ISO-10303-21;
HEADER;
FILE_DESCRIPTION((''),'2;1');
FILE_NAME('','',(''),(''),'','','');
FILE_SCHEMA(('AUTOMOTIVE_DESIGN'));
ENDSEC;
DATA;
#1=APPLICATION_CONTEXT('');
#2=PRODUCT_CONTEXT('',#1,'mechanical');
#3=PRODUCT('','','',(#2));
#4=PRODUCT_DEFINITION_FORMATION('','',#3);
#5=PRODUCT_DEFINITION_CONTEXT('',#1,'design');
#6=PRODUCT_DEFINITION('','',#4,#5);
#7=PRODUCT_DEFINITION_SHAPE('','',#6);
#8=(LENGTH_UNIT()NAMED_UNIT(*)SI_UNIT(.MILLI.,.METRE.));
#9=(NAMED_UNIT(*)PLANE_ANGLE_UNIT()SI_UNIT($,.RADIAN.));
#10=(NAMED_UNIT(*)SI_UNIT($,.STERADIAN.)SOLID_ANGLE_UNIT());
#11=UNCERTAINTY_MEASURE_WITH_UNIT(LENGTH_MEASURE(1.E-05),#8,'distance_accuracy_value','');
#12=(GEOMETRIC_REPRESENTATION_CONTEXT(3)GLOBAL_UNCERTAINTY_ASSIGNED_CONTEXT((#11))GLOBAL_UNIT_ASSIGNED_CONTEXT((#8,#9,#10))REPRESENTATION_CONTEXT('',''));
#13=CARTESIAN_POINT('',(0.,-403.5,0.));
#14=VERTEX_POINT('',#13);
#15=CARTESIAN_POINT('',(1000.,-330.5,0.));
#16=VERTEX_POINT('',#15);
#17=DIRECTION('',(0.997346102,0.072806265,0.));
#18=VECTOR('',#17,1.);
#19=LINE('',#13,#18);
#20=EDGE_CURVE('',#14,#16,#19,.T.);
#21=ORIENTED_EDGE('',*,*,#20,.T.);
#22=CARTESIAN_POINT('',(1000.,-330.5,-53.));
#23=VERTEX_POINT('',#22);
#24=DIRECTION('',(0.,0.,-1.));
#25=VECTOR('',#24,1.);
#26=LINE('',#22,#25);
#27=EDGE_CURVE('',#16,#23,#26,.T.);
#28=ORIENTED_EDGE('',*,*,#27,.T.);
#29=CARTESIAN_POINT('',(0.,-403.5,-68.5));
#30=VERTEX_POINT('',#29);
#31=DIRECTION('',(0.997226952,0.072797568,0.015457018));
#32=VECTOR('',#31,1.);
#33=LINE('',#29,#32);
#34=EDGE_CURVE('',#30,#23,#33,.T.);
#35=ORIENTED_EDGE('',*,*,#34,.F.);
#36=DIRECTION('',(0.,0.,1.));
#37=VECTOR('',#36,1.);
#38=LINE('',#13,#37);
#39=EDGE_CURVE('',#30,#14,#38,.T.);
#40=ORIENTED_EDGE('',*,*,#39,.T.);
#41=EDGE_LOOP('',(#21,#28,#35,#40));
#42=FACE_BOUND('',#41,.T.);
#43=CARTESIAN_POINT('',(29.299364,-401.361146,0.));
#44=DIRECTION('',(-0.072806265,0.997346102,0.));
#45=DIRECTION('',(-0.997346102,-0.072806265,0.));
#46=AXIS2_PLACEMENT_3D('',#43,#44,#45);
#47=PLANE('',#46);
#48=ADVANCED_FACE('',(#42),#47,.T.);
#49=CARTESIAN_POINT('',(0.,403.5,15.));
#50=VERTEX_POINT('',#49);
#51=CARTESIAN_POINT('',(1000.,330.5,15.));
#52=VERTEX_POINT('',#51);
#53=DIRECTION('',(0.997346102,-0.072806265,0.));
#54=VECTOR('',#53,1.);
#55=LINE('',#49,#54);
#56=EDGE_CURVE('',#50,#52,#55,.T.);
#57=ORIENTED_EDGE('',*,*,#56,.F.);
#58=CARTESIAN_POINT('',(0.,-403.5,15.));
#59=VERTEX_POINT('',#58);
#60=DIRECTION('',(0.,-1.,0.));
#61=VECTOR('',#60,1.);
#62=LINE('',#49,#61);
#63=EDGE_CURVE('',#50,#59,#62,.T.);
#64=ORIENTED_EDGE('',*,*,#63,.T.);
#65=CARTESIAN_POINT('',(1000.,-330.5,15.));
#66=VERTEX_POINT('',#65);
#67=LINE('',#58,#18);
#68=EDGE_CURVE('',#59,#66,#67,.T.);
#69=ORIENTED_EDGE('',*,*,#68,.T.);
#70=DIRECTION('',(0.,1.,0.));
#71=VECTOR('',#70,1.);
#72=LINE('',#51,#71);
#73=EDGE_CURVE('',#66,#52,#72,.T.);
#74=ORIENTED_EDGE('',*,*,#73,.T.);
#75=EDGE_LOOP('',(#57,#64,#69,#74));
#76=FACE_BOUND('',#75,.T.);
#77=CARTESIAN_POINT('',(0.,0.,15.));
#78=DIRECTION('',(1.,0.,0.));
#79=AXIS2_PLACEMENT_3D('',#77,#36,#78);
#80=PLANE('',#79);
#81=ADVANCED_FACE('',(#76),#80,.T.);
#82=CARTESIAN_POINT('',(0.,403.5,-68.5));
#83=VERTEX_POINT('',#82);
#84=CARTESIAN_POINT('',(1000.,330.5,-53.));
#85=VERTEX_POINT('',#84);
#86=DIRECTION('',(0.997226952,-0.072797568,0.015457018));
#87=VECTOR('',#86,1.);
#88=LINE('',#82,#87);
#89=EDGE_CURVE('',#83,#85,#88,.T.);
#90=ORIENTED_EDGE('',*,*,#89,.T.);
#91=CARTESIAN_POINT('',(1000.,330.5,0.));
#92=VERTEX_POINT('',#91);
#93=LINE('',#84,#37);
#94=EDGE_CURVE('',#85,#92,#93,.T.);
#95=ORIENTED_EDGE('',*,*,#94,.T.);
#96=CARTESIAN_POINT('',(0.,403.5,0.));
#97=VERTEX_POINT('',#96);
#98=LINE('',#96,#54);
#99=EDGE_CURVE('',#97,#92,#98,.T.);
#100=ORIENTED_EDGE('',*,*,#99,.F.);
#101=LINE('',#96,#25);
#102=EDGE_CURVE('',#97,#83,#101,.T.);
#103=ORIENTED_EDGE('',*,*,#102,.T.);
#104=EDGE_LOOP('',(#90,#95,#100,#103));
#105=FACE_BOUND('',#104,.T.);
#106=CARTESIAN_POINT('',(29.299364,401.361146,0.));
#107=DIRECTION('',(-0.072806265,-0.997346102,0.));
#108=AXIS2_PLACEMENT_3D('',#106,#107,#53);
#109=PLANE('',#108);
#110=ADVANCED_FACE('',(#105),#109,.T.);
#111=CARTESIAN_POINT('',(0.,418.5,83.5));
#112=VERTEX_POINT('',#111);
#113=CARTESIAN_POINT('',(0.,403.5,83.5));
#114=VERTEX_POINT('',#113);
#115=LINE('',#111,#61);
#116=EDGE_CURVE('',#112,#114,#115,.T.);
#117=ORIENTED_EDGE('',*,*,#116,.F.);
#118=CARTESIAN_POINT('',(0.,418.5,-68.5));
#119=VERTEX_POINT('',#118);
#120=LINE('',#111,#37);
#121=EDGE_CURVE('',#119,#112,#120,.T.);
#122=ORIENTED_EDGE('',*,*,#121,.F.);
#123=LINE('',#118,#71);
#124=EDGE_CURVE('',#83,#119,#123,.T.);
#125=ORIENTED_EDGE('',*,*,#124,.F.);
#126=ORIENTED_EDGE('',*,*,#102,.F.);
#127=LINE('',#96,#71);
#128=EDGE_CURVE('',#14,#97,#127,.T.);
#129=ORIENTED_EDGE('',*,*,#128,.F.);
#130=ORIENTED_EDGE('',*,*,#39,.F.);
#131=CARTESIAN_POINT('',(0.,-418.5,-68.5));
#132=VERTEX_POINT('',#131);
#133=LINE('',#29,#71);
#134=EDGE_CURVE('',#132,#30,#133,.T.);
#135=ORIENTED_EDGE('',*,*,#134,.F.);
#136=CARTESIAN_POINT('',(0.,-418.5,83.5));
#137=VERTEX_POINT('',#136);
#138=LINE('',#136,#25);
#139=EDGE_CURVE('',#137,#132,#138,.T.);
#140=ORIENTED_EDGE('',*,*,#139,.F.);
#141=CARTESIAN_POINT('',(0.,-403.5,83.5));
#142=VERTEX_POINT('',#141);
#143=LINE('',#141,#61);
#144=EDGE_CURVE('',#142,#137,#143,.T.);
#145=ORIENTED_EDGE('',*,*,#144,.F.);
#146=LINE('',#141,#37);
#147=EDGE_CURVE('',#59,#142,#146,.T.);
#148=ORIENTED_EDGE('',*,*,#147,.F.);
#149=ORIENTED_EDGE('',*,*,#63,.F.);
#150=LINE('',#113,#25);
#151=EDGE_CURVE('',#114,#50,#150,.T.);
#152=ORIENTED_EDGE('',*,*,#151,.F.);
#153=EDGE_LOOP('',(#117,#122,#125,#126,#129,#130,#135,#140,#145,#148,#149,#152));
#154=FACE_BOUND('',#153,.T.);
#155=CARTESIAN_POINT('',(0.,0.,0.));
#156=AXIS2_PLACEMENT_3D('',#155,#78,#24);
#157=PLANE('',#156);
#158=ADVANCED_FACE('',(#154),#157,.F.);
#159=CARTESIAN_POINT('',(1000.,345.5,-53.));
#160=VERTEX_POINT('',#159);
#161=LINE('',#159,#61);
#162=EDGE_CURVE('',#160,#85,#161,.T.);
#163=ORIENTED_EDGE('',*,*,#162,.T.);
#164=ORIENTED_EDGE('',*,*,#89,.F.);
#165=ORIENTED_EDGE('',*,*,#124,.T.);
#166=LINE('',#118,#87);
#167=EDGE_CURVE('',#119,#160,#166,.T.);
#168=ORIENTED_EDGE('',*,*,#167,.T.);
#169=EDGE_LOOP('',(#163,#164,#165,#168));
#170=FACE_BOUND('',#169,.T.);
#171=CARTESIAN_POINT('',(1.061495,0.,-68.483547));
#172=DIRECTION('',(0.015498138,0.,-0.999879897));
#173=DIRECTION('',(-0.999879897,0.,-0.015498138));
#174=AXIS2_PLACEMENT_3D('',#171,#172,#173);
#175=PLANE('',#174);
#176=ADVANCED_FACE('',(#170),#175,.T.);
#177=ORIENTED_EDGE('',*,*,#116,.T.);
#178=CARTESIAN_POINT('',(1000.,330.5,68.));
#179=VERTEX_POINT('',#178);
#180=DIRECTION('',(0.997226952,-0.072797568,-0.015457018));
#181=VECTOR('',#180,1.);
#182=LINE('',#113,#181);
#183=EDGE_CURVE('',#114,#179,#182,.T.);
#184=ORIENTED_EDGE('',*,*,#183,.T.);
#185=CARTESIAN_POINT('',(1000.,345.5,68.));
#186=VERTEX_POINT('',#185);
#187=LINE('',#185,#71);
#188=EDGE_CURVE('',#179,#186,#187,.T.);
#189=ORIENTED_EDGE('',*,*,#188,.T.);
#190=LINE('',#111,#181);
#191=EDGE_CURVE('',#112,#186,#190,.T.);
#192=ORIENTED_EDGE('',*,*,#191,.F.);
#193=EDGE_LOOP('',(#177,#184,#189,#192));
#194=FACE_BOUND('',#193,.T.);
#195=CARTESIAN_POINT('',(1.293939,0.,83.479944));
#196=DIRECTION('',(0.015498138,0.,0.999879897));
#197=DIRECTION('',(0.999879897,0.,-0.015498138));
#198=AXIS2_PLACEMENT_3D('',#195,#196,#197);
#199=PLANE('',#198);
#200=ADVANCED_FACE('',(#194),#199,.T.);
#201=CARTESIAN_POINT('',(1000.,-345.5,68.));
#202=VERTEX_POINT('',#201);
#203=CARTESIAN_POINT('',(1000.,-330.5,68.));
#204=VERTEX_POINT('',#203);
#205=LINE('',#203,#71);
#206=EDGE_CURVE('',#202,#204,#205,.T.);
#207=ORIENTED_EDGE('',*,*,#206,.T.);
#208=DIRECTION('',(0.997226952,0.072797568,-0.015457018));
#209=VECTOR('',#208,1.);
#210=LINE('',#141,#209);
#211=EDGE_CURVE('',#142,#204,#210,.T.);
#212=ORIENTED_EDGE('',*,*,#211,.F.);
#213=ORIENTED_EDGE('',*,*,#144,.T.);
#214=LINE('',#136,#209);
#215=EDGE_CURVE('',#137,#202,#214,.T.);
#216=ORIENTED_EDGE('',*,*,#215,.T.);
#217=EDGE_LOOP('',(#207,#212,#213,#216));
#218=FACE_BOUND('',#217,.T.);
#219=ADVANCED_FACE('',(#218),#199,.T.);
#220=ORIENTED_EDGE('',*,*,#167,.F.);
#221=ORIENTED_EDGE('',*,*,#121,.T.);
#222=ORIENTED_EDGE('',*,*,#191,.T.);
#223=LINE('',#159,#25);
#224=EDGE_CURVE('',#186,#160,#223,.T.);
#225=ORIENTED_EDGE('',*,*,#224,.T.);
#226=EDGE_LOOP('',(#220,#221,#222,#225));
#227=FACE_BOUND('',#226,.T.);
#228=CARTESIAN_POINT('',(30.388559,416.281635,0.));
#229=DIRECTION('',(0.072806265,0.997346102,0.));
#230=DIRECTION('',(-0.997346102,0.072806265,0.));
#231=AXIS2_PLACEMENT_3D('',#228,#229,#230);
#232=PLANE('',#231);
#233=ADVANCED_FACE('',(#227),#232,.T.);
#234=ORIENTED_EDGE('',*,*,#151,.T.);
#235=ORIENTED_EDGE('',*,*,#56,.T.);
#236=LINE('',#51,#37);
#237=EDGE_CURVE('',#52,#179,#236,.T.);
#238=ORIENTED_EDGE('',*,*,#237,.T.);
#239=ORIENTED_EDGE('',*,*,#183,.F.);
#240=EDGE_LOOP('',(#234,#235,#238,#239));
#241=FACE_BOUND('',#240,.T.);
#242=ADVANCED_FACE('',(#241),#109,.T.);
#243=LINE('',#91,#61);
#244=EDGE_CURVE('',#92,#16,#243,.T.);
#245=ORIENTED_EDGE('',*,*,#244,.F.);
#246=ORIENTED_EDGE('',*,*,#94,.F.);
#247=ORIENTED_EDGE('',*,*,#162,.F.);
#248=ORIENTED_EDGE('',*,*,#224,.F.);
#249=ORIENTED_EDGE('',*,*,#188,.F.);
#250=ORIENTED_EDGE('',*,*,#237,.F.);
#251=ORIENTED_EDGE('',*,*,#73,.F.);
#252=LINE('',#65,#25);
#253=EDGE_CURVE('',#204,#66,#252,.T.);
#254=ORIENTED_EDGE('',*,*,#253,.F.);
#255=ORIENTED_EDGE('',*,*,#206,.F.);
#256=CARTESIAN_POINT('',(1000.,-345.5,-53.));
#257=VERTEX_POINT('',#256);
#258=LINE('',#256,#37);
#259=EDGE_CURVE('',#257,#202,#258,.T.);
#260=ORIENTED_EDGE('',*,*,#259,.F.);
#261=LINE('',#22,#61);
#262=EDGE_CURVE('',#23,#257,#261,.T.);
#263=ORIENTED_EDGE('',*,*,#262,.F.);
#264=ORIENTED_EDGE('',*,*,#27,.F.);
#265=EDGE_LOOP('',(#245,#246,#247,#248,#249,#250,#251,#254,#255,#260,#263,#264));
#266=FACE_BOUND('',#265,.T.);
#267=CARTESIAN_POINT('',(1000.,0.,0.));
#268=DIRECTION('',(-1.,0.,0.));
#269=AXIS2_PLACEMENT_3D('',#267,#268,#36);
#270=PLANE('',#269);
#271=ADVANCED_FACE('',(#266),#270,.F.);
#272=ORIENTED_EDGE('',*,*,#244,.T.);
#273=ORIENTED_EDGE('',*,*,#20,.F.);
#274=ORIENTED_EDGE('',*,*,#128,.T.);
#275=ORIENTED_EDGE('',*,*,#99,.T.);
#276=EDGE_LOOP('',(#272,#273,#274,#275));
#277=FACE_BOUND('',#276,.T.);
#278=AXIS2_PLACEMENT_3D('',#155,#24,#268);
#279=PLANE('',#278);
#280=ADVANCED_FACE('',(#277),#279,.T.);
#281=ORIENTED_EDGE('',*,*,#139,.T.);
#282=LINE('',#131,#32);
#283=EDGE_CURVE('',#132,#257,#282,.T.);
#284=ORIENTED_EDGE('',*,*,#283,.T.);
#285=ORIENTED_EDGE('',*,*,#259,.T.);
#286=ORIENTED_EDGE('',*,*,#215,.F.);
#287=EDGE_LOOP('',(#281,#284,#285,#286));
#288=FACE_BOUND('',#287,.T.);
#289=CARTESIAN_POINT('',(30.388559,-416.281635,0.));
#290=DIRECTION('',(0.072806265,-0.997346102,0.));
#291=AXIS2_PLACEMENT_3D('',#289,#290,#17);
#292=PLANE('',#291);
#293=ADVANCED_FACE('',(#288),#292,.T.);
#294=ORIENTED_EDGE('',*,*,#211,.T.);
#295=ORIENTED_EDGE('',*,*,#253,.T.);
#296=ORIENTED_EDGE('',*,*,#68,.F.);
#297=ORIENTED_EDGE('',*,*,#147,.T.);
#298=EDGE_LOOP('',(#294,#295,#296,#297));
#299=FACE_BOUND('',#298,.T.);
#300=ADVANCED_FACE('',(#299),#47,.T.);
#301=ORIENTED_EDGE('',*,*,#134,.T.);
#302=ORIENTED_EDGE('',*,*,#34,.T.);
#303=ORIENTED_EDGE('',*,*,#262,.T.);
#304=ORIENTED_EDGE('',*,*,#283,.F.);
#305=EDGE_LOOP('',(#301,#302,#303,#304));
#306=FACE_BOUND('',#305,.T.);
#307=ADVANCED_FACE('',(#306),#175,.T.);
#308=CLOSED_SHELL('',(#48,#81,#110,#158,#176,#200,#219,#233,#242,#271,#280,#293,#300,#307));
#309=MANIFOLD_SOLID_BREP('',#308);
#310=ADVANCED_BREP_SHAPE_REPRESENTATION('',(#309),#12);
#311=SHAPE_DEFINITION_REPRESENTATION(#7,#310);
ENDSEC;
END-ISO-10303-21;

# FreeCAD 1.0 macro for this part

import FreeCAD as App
import Part
import Sketcher


def add_polygon(sketch, points):
    """Adds a closed chain of lines whose ends are joined by coincident constraints."""
    first, n = sketch.GeometryCount, len(points)
    for a, b in zip(points, points[1:] + points[:1]):
        sketch.addGeometry(Part.LineSegment(App.Vector(*a, 0), App.Vector(*b, 0)), False)
    for i in range(n):
        sketch.addConstraint(Sketcher.Constraint("Coincident", first + i, 2, first + (i + 1) % n, 1))

doc = App.newDocument("Part")
params = doc.addObject("Spreadsheet::Sheet", "Params")
for row, (alias, value) in enumerate([
    ("sketch1_width", "15 mm"),
    ("sketch1_width2", "807 mm"),
    ("sketch1_height", "152 mm"),
    ("sketch1_height2", "68.5 mm"),
    ("sketch2_width", "15 mm"),
    ("sketch2_width2", "661 mm"),
    ("sketch2_height", "121 mm"),
    ("sketch2_height2", "53 mm"),
], start=1):
    params.set(f"A{row}", alias)
    params.set(f"B{row}", "=" + value)
    params.setAlias(f"B{row}", alias)

body = doc.addObject("PartDesign::Body", "Body")

sketch1 = body.newObject("Sketcher::SketchObject", "Sketch")
sketch1.AttachmentSupport = (doc.getObject("YZ_Plane"), [""])
sketch1.MapMode = "FlatFace"
add_polygon(sketch1, [(418, -68), (418, 84), (404, 84), (404, 15), (-404, 15), (-404, 84), (-418, 84), (-418, -68), (-404, -68), (-404, 0), (404, 0), (404, -68)])
sketch1.addConstraint([
    Sketcher.Constraint("Vertical", 0),
    Sketcher.Constraint("Horizontal", 1),
    Sketcher.Constraint("Vertical", 2),
    Sketcher.Constraint("Horizontal", 3),
    Sketcher.Constraint("Vertical", 4),
    Sketcher.Constraint("Horizontal", 5),
    Sketcher.Constraint("Vertical", 6),
    Sketcher.Constraint("Horizontal", 7),
    Sketcher.Constraint("Vertical", 8),
    Sketcher.Constraint("Horizontal", 9),
    Sketcher.Constraint("Vertical", 10),
    Sketcher.Constraint("Horizontal", 11),
    Sketcher.Constraint("Symmetric", 8, 2, 9, 2, -1, 1),
    Sketcher.Constraint("Symmetric", 1, 2, 4, 2, -2),
    Sketcher.Constraint("Symmetric", 6, 2, 11, 2, -2),
    Sketcher.Constraint("Vertical", 4, 2, 7, 2),
    Sketcher.Constraint("Equal", 4, 8),
    Sketcher.Constraint("DistanceX", 1, 2, 1, 1, 15.0),
    Sketcher.Constraint("DistanceX", 3, 2, 3, 1, 807.0),
    Sketcher.Constraint("DistanceY", 0, 1, 0, 2, 152.0),
    Sketcher.Constraint("DistanceY", 2, 2, 2, 1, 68.5),
])
sketch1.setExpression("Constraints[29]", "Params.sketch1_width")
sketch1.setExpression("Constraints[30]", "Params.sketch1_width2")
sketch1.setExpression("Constraints[31]", "Params.sketch1_height")
sketch1.setExpression("Constraints[32]", "Params.sketch1_height2")

sketch2 = body.newObject("Sketcher::SketchObject", "Sketch001")
sketch2.AttachmentSupport = (doc.getObject("YZ_Plane"), [""])
sketch2.MapMode = "FlatFace"
sketch2.AttachmentOffset = App.Placement(App.Vector(0, 0, 1000), App.Rotation())
add_polygon(sketch2, [(346, 68), (346, -53), (330, -53), (330, 0), (-330, 0), (-330, -53), (-346, -53), (-346, 68), (-330, 68), (-330, 15), (330, 15), (330, 68)])
sketch2.addConstraint([
    Sketcher.Constraint("Vertical", 0),
    Sketcher.Constraint("Horizontal", 1),
    Sketcher.Constraint("Vertical", 2),
    Sketcher.Constraint("Horizontal", 3),
    Sketcher.Constraint("Vertical", 4),
    Sketcher.Constraint("Horizontal", 5),
    Sketcher.Constraint("Vertical", 6),
    Sketcher.Constraint("Horizontal", 7),
    Sketcher.Constraint("Vertical", 8),
    Sketcher.Constraint("Horizontal", 9),
    Sketcher.Constraint("Vertical", 10),
    Sketcher.Constraint("Horizontal", 11),
    Sketcher.Constraint("Symmetric", 2, 2, 3, 2, -1, 1),
    Sketcher.Constraint("Symmetric", 0, 2, 5, 2, -2),
    Sketcher.Constraint("Symmetric", 7, 2, 10, 2, -2),
    Sketcher.Constraint("Vertical", 4, 2, 7, 2),
    Sketcher.Constraint("Equal", 4, 8),
    Sketcher.Constraint("DistanceX", 1, 2, 1, 1, 15.0),
    Sketcher.Constraint("DistanceX", 3, 2, 3, 1, 661.0),
    Sketcher.Constraint("DistanceY", 0, 2, 0, 1, 121.0),
    Sketcher.Constraint("DistanceY", 2, 1, 2, 2, 53.0),
])
sketch2.setExpression("Constraints[29]", "Params.sketch2_width")
sketch2.setExpression("Constraints[30]", "Params.sketch2_width2")
sketch2.setExpression("Constraints[31]", "Params.sketch2_height")
sketch2.setExpression("Constraints[32]", "Params.sketch2_height2")

additiveloft = body.newObject("PartDesign::AdditiveLoft", "AdditiveLoft")
additiveloft.Profile = sketch1
additiveloft.Sections = [sketch2]

doc.recompute()
